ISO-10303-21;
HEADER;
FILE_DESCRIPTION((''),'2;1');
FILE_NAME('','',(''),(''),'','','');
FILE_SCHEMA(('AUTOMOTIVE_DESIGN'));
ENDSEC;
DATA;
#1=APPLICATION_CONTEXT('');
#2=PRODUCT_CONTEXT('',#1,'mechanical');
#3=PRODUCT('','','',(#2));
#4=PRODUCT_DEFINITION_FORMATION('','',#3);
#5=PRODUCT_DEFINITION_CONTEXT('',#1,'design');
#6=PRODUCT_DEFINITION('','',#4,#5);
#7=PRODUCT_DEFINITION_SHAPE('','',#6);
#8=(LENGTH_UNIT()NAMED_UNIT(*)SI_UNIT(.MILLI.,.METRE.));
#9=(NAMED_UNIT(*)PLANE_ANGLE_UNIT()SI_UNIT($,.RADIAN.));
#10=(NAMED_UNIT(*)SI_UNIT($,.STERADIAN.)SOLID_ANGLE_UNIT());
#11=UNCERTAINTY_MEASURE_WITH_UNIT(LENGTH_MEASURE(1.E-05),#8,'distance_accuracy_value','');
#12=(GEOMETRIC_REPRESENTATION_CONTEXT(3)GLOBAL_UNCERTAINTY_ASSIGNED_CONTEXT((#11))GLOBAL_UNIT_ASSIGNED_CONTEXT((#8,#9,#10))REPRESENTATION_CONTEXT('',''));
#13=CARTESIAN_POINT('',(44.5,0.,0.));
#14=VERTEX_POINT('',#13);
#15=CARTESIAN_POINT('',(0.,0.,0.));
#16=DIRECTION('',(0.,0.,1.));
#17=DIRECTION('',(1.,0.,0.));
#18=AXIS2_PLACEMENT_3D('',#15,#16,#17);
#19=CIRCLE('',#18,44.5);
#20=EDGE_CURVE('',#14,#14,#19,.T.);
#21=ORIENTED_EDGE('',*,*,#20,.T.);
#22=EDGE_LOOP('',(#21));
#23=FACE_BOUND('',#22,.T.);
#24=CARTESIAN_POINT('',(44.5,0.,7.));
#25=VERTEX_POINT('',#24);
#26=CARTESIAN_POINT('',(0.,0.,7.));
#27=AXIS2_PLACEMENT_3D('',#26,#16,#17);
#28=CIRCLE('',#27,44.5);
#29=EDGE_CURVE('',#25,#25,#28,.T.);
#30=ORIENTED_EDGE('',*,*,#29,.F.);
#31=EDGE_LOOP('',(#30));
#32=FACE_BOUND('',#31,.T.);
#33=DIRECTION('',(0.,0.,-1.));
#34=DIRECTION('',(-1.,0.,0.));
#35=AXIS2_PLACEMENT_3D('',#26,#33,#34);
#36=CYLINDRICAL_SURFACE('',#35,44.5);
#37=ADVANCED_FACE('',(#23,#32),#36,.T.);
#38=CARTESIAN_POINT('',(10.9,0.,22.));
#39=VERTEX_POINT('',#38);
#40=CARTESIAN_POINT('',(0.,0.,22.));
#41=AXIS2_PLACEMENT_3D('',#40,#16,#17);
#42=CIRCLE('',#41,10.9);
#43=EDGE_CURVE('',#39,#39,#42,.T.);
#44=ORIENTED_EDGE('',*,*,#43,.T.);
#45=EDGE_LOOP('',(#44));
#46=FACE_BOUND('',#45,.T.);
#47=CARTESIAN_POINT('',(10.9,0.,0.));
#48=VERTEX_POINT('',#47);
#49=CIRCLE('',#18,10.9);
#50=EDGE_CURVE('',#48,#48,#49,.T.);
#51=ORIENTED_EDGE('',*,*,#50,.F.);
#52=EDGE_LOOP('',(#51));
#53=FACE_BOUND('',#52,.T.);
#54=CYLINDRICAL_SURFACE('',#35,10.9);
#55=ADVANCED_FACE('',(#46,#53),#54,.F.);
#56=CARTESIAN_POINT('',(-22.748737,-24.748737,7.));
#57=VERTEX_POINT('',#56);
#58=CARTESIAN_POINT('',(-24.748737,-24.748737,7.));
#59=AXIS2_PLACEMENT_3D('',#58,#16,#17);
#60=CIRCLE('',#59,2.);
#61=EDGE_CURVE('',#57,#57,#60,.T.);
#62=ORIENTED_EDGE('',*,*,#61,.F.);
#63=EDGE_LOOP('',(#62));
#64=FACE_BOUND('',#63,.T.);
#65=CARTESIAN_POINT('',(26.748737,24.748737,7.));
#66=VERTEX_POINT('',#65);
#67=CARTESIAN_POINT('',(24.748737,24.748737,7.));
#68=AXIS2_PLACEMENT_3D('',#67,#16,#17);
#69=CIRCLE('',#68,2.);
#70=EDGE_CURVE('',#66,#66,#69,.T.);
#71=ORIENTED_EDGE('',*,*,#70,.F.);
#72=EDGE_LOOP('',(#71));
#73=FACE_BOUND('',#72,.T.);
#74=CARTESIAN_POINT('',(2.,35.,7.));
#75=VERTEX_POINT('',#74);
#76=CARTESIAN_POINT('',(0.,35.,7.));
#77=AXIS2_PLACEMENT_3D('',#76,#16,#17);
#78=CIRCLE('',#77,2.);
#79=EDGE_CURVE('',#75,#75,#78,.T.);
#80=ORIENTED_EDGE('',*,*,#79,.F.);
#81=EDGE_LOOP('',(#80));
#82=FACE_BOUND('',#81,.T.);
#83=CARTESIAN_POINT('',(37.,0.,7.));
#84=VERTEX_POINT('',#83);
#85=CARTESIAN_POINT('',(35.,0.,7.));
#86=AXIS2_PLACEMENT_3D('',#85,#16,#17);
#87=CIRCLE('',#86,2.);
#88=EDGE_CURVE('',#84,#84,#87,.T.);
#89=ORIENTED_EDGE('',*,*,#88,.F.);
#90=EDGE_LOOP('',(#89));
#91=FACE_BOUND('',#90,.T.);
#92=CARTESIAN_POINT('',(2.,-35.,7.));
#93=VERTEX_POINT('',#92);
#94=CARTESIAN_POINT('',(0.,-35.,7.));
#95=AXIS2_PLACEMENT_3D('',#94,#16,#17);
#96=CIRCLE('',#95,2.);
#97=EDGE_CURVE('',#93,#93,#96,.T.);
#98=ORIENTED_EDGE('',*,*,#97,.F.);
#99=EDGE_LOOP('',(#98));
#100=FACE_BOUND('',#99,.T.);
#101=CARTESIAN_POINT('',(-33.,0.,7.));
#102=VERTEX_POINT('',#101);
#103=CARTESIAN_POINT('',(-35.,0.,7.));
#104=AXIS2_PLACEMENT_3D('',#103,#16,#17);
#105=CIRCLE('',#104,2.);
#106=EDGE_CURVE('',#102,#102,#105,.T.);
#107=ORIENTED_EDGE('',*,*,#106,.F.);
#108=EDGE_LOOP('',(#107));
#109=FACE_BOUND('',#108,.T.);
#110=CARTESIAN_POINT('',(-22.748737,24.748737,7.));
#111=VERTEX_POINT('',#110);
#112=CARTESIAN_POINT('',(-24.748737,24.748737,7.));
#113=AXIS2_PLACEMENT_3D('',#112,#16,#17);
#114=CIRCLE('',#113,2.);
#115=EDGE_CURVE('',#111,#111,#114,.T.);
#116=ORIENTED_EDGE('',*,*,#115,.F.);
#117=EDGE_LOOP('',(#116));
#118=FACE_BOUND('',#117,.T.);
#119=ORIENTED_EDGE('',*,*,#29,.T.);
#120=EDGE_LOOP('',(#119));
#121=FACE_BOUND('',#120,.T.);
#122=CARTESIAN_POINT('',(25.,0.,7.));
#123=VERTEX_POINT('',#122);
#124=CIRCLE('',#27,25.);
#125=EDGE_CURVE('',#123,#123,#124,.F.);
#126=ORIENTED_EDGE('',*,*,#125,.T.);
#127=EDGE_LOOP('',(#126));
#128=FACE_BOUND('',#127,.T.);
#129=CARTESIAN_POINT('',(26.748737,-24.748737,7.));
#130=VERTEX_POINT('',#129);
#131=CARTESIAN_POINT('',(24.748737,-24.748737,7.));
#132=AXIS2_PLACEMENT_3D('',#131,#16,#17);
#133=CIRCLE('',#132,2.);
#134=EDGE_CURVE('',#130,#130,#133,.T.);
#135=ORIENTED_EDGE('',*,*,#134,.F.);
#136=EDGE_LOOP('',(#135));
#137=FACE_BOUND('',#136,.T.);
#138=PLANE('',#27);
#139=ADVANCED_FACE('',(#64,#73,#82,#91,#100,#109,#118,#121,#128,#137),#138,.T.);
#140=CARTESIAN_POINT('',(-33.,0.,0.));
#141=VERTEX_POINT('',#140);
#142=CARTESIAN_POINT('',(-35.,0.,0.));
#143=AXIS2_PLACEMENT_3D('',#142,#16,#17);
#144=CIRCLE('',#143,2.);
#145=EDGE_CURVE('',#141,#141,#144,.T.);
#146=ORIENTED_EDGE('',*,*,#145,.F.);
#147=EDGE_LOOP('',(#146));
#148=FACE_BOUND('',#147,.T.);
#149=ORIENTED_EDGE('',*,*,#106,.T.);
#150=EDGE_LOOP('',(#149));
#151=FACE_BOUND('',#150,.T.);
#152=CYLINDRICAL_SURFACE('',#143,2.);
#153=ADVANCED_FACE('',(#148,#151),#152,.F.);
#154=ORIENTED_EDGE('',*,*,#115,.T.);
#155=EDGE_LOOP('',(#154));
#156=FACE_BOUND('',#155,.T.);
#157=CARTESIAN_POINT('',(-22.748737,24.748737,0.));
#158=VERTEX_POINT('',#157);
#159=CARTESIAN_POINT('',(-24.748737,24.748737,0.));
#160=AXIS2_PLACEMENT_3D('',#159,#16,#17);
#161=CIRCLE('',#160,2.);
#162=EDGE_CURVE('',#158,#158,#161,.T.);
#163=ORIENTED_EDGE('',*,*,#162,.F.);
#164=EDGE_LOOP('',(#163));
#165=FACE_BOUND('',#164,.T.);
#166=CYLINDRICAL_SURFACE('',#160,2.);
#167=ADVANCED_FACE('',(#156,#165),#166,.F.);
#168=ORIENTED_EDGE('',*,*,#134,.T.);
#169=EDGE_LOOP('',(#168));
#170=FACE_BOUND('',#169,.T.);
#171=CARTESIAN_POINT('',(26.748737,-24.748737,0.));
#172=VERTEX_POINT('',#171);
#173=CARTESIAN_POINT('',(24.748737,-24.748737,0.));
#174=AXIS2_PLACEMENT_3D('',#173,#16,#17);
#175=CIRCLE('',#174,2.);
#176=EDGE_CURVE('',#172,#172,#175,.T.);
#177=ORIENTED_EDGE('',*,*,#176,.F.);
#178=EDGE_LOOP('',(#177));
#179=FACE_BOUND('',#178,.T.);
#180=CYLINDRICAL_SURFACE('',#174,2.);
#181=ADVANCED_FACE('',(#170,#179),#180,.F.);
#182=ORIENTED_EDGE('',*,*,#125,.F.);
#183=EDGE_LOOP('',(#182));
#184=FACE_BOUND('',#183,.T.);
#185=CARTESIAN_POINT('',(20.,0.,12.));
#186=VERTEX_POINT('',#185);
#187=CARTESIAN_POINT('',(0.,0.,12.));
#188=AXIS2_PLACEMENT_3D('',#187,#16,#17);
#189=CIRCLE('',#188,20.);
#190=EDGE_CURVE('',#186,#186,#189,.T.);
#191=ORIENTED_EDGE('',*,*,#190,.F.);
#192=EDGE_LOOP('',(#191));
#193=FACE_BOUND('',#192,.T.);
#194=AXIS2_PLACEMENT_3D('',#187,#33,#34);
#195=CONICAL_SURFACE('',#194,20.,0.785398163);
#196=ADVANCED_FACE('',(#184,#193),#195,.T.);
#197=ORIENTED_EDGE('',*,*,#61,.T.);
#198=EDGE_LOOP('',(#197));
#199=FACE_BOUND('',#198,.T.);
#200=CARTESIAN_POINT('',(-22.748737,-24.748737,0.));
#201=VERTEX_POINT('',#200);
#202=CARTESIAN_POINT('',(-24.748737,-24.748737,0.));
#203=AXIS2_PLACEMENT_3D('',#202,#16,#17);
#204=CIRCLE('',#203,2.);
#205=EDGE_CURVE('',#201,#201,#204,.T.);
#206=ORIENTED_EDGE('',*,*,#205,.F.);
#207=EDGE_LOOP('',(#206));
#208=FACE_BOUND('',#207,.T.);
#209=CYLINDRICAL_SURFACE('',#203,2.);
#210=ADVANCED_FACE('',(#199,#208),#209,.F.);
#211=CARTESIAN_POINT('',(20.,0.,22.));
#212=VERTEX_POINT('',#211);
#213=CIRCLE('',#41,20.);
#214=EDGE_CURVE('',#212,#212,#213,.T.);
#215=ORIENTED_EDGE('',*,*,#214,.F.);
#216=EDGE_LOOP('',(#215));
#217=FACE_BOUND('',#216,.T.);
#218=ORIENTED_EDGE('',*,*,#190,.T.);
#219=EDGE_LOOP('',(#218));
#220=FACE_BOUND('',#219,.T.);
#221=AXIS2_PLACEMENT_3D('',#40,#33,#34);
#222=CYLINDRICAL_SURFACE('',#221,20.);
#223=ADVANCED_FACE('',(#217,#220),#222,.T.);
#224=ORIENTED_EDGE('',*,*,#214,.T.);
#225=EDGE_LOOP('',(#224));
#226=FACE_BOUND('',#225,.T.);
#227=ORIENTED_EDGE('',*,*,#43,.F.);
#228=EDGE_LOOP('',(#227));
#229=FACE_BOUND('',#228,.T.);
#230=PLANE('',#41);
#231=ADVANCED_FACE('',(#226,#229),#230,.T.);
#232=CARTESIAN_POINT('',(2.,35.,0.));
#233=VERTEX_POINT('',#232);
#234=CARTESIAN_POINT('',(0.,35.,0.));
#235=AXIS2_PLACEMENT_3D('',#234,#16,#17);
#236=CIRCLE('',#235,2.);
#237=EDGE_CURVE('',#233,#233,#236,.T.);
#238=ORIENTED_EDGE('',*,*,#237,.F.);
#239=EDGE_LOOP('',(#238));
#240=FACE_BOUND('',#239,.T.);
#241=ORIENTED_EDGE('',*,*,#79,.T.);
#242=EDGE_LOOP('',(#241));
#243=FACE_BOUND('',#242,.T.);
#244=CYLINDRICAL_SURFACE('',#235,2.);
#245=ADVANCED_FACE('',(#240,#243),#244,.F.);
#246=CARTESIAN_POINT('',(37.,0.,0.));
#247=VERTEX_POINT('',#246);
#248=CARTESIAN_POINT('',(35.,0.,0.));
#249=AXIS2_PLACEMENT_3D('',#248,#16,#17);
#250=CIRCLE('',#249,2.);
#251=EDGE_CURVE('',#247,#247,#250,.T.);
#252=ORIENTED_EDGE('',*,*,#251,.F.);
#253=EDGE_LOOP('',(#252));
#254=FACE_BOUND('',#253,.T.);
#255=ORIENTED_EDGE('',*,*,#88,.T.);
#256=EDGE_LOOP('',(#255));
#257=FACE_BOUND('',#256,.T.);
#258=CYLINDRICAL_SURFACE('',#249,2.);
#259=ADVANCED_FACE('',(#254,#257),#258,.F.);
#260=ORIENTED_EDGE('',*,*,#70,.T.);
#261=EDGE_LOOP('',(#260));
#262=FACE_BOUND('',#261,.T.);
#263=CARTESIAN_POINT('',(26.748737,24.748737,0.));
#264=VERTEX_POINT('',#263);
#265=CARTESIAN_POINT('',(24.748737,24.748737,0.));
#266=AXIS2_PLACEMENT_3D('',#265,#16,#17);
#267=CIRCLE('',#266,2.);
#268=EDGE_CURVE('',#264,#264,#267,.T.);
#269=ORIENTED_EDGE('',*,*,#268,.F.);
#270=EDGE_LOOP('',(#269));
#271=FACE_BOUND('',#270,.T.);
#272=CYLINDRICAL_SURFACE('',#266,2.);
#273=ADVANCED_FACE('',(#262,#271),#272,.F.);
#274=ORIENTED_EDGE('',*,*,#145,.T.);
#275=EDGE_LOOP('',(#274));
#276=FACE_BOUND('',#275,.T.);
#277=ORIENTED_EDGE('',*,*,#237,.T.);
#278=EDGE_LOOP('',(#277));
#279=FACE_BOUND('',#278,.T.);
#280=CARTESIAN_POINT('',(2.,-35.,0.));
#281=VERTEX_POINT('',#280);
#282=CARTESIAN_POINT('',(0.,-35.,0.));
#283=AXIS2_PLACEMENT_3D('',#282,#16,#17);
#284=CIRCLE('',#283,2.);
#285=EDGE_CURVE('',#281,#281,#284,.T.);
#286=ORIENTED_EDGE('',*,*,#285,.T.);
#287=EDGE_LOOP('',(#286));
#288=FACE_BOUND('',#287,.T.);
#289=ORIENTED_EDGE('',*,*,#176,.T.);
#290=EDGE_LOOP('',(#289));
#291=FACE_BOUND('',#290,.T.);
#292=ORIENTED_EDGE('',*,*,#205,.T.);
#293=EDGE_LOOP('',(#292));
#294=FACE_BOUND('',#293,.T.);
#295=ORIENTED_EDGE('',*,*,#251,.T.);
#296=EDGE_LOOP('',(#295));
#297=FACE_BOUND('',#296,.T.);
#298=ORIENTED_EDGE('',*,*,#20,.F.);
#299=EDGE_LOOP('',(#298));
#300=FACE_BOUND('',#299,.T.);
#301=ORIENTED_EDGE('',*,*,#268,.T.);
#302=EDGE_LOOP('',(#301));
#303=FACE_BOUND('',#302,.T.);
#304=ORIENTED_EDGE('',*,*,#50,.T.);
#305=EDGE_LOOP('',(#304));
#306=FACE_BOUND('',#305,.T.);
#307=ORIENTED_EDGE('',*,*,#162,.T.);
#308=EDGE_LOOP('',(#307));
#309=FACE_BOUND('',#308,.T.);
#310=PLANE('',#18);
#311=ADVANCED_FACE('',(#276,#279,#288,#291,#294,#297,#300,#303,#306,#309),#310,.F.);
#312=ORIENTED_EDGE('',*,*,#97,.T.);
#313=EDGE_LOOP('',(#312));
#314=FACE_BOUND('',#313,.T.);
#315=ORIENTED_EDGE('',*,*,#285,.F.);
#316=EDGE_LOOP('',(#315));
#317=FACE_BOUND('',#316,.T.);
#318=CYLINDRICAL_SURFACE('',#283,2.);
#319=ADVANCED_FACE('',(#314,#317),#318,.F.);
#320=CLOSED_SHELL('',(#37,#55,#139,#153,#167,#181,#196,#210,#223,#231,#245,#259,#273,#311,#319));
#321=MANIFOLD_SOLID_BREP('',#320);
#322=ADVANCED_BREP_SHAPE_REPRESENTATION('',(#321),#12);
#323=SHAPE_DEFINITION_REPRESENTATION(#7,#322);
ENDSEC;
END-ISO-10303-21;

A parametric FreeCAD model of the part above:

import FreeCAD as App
import Part
import Sketcher


def edges_at(feature, points):
    """Names of the edges that pass closest to the given points."""
    edges = feature.Shape.Edges
    near = lambda p: min(range(len(edges)), key=lambda i: edges[i].distToShape(Part.Vertex(*p))[0])
    return sorted({f"Edge{near(p) + 1}" for p in points})

doc = App.newDocument("Part")
body = doc.addObject("PartDesign::Body", "Body")

sketch1 = body.newObject("Sketcher::SketchObject", "Sketch")
sketch1.AttachmentSupport = (doc.getObject("XY_Plane"), [""])
sketch1.MapMode = "FlatFace"
sketch1.addGeometry(Part.Circle(App.Vector(0, 0, 0), App.Vector(0, 0, 1), 44), False)
sketch1.addGeometry(Part.Circle(App.Vector(0, 0, 0), App.Vector(0, 0, 1), 11), False)
sketch1.addConstraint(Sketcher.Constraint("Coincident", 0, 3, -1, 1))
sketch1.addConstraint(Sketcher.Constraint("Coincident", 1, 3, -1, 1))
sketch1.addConstraint(Sketcher.Constraint("Diameter", 0, 89.0))
sketch1.addConstraint(Sketcher.Constraint("Diameter", 1, 21.8))
pad1 = body.newObject("PartDesign::Pad", "Pad")
pad1.Profile = sketch1
pad1.Length = 7

sketch2 = body.newObject("Sketcher::SketchObject", "Sketch001")
sketch2.AttachmentSupport = (doc.getObject("XY_Plane"), [""])
sketch2.MapMode = "FlatFace"
sketch2.AttachmentOffset = App.Placement(App.Vector(0, 0, 7), App.Rotation())
sketch2.addGeometry(Part.Circle(App.Vector(0, 0, 0), App.Vector(0, 0, 1), 20), False)
sketch2.addGeometry(Part.Circle(App.Vector(0, 0, 0), App.Vector(0, 0, 1), 11), False)
sketch2.addConstraint(Sketcher.Constraint("Coincident", 0, 3, -1, 1))
sketch2.addConstraint(Sketcher.Constraint("Coincident", 1, 3, -1, 1))
sketch2.addConstraint(Sketcher.Constraint("Diameter", 0, 40.0))
sketch2.addConstraint(Sketcher.Constraint("Diameter", 1, 21.8))
pad2 = body.newObject("PartDesign::Pad", "Pad001")
pad2.Profile = sketch2
pad2.Length = 15

sketch3 = body.newObject("Sketcher::SketchObject", "Sketch002")
sketch3.AttachmentSupport = (doc.getObject("XY_Plane"), [""])
sketch3.MapMode = "FlatFace"
sketch3.AttachmentOffset = App.Placement(App.Vector(0, 0, 7), App.Rotation())
sketch3.addGeometry(Part.Circle(App.Vector(0, 35, 0), App.Vector(0, 0, 1), 2), False)
sketch3.addGeometry(Part.Circle(App.Vector(24.7, 24.7, 0), App.Vector(0, 0, 1), 2), False)
sketch3.addGeometry(Part.Circle(App.Vector(35, 0, 0), App.Vector(0, 0, 1), 2), False)
sketch3.addGeometry(Part.Circle(App.Vector(24.7, -24.7, 0), App.Vector(0, 0, 1), 2), False)
sketch3.addGeometry(Part.Circle(App.Vector(0, -35, 0), App.Vector(0, 0, 1), 2), False)
sketch3.addGeometry(Part.Circle(App.Vector(-24.7, -24.7, 0), App.Vector(0, 0, 1), 2), False)
sketch3.addGeometry(Part.Circle(App.Vector(-35, 0, 0), App.Vector(0, 0, 1), 2), False)
sketch3.addGeometry(Part.Circle(App.Vector(-24.7, 24.7, 0), App.Vector(0, 0, 1), 2), False)
sketch3.addConstraint(Sketcher.Constraint("Equal", 0, 1))
sketch3.addConstraint(Sketcher.Constraint("Equal", 1, 2))
sketch3.addConstraint(Sketcher.Constraint("Equal", 2, 3))
sketch3.addConstraint(Sketcher.Constraint("Equal", 3, 4))
sketch3.addConstraint(Sketcher.Constraint("Equal", 4, 5))
sketch3.addConstraint(Sketcher.Constraint("Equal", 5, 6))
sketch3.addConstraint(Sketcher.Constraint("Equal", 6, 7))
sketch3.addConstraint(Sketcher.Constraint("Symmetric", 0, 3, 4, 3, -1, 1))
sketch3.addConstraint(Sketcher.Constraint("Symmetric", 1, 3, 5, 3, -1, 1))
sketch3.addConstraint(Sketcher.Constraint("Symmetric", 2, 3, 6, 3, -1, 1))
sketch3.addConstraint(Sketcher.Constraint("Symmetric", 3, 3, 7, 3, -1, 1))
sketch3.addConstraint(Sketcher.Constraint("Symmetric", 3, 3, 5, 3, -2))
sketch3.addConstraint(Sketcher.Constraint("PointOnObject", 0, 3, -2))
sketch3.addConstraint(Sketcher.Constraint("PointOnObject", 2, 3, -1))
sketch3.addConstraint(Sketcher.Constraint("Diameter", 0, 4.0))
sketch3.addConstraint(Sketcher.Constraint("DistanceY", -1, 1, 0, 3, 35.0))
sketch3.addConstraint(Sketcher.Constraint("DistanceX", -1, 1, 2, 3, 35.0))
sketch3.addConstraint(Sketcher.Constraint("DistanceX", -1, 1, 1, 3, 24.748737))
sketch3.addConstraint(Sketcher.Constraint("DistanceY", -1, 1, 1, 3, 24.748737))
pocket1 = body.newObject("PartDesign::Pocket", "Pocket")
pocket1.Profile = sketch3
pocket1.Type = "ThroughAll"
doc.recompute()

chamfer = body.newObject("PartDesign::Chamfer", "Chamfer")
chamfer.Base = (pocket1, edges_at(pocket1, [(-20, 0, 7)]))
chamfer.Size = 5

doc.recompute()
